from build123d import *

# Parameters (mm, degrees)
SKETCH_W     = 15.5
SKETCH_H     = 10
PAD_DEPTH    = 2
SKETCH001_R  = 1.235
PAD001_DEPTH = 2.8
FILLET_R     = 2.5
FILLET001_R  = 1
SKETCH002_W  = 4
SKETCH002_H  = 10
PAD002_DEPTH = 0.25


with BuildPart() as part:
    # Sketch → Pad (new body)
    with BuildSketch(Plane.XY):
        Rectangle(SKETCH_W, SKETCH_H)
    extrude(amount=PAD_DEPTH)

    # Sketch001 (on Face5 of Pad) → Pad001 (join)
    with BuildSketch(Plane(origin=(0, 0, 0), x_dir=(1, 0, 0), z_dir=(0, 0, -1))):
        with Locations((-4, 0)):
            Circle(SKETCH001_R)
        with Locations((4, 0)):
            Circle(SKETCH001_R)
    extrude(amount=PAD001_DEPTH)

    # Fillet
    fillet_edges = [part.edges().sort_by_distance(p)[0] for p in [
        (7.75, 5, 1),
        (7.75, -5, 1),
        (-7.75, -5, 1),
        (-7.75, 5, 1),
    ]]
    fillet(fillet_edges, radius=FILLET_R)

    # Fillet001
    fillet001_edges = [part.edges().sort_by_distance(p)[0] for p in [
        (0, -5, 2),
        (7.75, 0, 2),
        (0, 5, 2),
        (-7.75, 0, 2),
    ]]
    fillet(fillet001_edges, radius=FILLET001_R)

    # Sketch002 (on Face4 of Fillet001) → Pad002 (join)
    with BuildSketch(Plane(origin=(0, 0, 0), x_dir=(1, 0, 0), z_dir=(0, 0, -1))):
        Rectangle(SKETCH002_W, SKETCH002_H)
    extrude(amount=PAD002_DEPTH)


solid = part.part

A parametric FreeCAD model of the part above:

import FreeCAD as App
import Part
import Sketcher
from FreeCAD import Vector
Q = App.Units.Quantity


def edges_at(feature, points):
    """Names of the edges that pass closest to the given points."""
    edges = feature.Shape.Edges
    near = lambda p: min(range(len(edges)), key=lambda i: edges[i].distToShape(Part.Vertex(*p))[0])
    return sorted({f"Edge{near(p) + 1}" for p in points})

doc = App.newDocument("Part")
body = doc.addObject("PartDesign::Body", "Body")

# Sketch on XY plane
sketch1 = doc.addObject("Sketcher::SketchObject", "Sketch")
body.addObject(sketch1)
sketch1.AttachmentSupport = (doc.XY_Plane, [""])
sketch1.MapMode = "FlatFace"
sketch1.addGeometry(Part.LineSegment(Vector(-8, 5, 0), Vector(-8, -5, 0)), False)
sketch1.addGeometry(Part.LineSegment(Vector(-8, -5, 0), Vector(8, -5, 0)), False)
sketch1.addGeometry(Part.LineSegment(Vector(8, -5, 0), Vector(8, 5, 0)), False)
sketch1.addGeometry(Part.LineSegment(Vector(8, 5, 0), Vector(-8, 5, 0)), False)
sketch1.addConstraint(Sketcher.Constraint("Coincident", 0, 2, 1, 1))
sketch1.addConstraint(Sketcher.Constraint("Coincident", 1, 2, 2, 1))
sketch1.addConstraint(Sketcher.Constraint("Coincident", 2, 2, 3, 1))
sketch1.addConstraint(Sketcher.Constraint("Coincident", 3, 2, 0, 1))
sketch1.addConstraint(Sketcher.Constraint("Vertical", 0))
sketch1.addConstraint(Sketcher.Constraint("Horizontal", 1))
sketch1.addConstraint(Sketcher.Constraint("Vertical", 2))
sketch1.addConstraint(Sketcher.Constraint("Horizontal", 3))
sketch1.addConstraint(Sketcher.Constraint("Symmetric", 0, 2, 2, 2, -1, 1))
sketch1.addConstraint(Sketcher.Constraint("DistanceY", 0, 2, 0, 1, Q("10 mm")))
sketch1.addConstraint(Sketcher.Constraint("DistanceX", 1, 1, 1, 2, Q("15.5 mm")))
pad1 = doc.addObject("PartDesign::Pad", "Pad")
body.addObject(pad1)
pad1.Profile = sketch1
pad1.Length = 2

# Sketch on XY plane
sketch2 = doc.addObject("Sketcher::SketchObject", "Sketch001")
body.addObject(sketch2)
sketch2.AttachmentSupport = (doc.XY_Plane, [""])
sketch2.MapMode = "FlatFace"
sketch2.addGeometry(Part.Circle(Vector(-4, 0, 0), Vector(0, 0, 1), 1.2), False)
sketch2.addGeometry(Part.Circle(Vector(4, 0, 0), Vector(0, 0, 1), 1.2), False)
sketch2.addConstraint(Sketcher.Constraint("Equal", 0, 1))
sketch2.addConstraint(Sketcher.Constraint("Symmetric", 0, 3, 1, 3, -1, 1))
sketch2.addConstraint(Sketcher.Constraint("PointOnObject", 0, 3, -1))
sketch2.addConstraint(Sketcher.Constraint("Diameter", 0, Q("2.47 mm")))
sketch2.addConstraint(Sketcher.Constraint("DistanceX", 0, 3, -1, 1, Q("4 mm")))
pad2 = doc.addObject("PartDesign::Pad", "Pad001")
body.addObject(pad2)
pad2.Profile = sketch2
pad2.Length = 2.8
pad2.Reversed = True
doc.recompute()

fillet = doc.addObject("PartDesign::Fillet", "Fillet")
body.addObject(fillet)
fillet.Base = (pad2, edges_at(pad2, [
    (7.75, 5, 1),
    (7.75, -5, 1),
    (-7.75, -5, 1),
    (-7.75, 5, 1),
]))
fillet.Radius = 2.5
doc.recompute()

fillet2 = doc.addObject("PartDesign::Fillet", "Fillet001")
body.addObject(fillet2)
fillet2.Base = (fillet, edges_at(fillet, [
    (0, -5, 2),
    (7.75, 0, 2),
    (0, 5, 2),
    (-7.75, 0, 2),
]))
fillet2.Radius = 1

# Sketch on XY plane
sketch3 = doc.addObject("Sketcher::SketchObject", "Sketch002")
body.addObject(sketch3)
sketch3.AttachmentSupport = (doc.XY_Plane, [""])
sketch3.MapMode = "FlatFace"
sketch3.addGeometry(Part.LineSegment(Vector(-2, -5, 0), Vector(-2, 5, 0)), False)
sketch3.addGeometry(Part.LineSegment(Vector(-2, 5, 0), Vector(2, 5, 0)), False)
sketch3.addGeometry(Part.LineSegment(Vector(2, 5, 0), Vector(2, -5, 0)), False)
sketch3.addGeometry(Part.LineSegment(Vector(2, -5, 0), Vector(-2, -5, 0)), False)
sketch3.addConstraint(Sketcher.Constraint("Coincident", 0, 2, 1, 1))
sketch3.addConstraint(Sketcher.Constraint("Coincident", 1, 2, 2, 1))
sketch3.addConstraint(Sketcher.Constraint("Coincident", 2, 2, 3, 1))
sketch3.addConstraint(Sketcher.Constraint("Coincident", 3, 2, 0, 1))
sketch3.addConstraint(Sketcher.Constraint("Vertical", 0))
sketch3.addConstraint(Sketcher.Constraint("Horizontal", 1))
sketch3.addConstraint(Sketcher.Constraint("Vertical", 2))
sketch3.addConstraint(Sketcher.Constraint("Horizontal", 3))
sketch3.addConstraint(Sketcher.Constraint("Symmetric", 0, 2, 2, 2, -1, 1))
sketch3.addConstraint(Sketcher.Constraint("DistanceX", 1, 1, 1, 2, Q("4 mm")))
sketch3.addConstraint(Sketcher.Constraint("DistanceY", 0, 1, 0, 2, Q("10 mm")))
pad3 = doc.addObject("PartDesign::Pad", "Pad002")
body.addObject(pad3)
pad3.Profile = sketch3
pad3.Length = 0.25
pad3.Reversed = True

doc.recompute()
